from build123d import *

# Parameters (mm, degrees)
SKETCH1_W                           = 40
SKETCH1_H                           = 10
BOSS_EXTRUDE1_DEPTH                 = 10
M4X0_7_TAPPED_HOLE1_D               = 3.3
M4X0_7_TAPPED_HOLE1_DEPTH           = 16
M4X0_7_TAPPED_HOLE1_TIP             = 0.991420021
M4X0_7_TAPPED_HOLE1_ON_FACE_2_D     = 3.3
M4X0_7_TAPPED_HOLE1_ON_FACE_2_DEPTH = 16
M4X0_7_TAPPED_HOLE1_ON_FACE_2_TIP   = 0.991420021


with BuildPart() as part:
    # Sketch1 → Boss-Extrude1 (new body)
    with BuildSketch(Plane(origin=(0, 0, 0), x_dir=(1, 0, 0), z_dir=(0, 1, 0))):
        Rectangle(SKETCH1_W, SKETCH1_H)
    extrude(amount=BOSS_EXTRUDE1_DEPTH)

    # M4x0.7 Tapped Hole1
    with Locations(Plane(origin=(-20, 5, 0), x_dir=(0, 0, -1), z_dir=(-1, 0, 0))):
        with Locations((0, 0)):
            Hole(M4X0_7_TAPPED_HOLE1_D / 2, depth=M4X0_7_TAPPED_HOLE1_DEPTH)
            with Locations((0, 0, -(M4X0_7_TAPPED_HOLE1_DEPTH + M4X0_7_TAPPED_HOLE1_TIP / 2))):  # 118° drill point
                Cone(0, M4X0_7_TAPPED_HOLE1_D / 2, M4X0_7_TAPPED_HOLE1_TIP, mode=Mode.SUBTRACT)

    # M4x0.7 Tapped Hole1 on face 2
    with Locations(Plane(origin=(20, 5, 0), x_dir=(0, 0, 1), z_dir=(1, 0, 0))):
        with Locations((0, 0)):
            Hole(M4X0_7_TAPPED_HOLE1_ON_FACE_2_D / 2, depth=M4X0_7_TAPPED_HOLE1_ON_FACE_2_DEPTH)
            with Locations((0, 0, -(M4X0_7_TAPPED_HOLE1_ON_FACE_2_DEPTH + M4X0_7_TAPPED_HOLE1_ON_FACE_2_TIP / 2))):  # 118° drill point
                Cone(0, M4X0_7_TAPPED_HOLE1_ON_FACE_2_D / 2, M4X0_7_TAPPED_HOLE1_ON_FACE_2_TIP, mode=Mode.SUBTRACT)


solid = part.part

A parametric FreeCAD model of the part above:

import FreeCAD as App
import Part
import Sketcher
from FreeCAD import Vector
Q = App.Units.Quantity

doc = App.newDocument("Part")
body = doc.addObject("PartDesign::Body", "Body")

# Sketch on XZ plane
sketch1 = doc.addObject("Sketcher::SketchObject", "Sketch")
body.addObject(sketch1)
sketch1.AttachmentSupport = (doc.XZ_Plane, [""])
sketch1.MapMode = "FlatFace"
sketch1.addGeometry(Part.LineSegment(Vector(-20, -5, 0), Vector(-20, 5, 0)), False)
sketch1.addGeometry(Part.LineSegment(Vector(-20, 5, 0), Vector(20, 5, 0)), False)
sketch1.addGeometry(Part.LineSegment(Vector(20, 5, 0), Vector(20, -5, 0)), False)
sketch1.addGeometry(Part.LineSegment(Vector(20, -5, 0), Vector(-20, -5, 0)), False)
sketch1.addConstraint(Sketcher.Constraint("Coincident", 0, 2, 1, 1))
sketch1.addConstraint(Sketcher.Constraint("Coincident", 1, 2, 2, 1))
sketch1.addConstraint(Sketcher.Constraint("Coincident", 2, 2, 3, 1))
sketch1.addConstraint(Sketcher.Constraint("Coincident", 3, 2, 0, 1))
sketch1.addConstraint(Sketcher.Constraint("Vertical", 0))
sketch1.addConstraint(Sketcher.Constraint("Horizontal", 1))
sketch1.addConstraint(Sketcher.Constraint("Vertical", 2))
sketch1.addConstraint(Sketcher.Constraint("Horizontal", 3))
sketch1.addConstraint(Sketcher.Constraint("Symmetric", 0, 2, 2, 2, -1, 1))
sketch1.addConstraint(Sketcher.Constraint("DistanceX", 1, 1, 1, 2, Q("40 mm")))
sketch1.addConstraint(Sketcher.Constraint("DistanceY", 0, 1, 0, 2, Q("10 mm")))
pad1 = doc.addObject("PartDesign::Pad", "Pad")
body.addObject(pad1)
pad1.Profile = sketch1
pad1.Length = 10
pad1.Reversed = True

# Sketch on YZ plane
sketch2 = doc.addObject("Sketcher::SketchObject", "Sketch001")
body.addObject(sketch2)
sketch2.AttachmentSupport = (doc.YZ_Plane, [""])
sketch2.MapMode = "FlatFace"
sketch2.AttachmentOffset = App.Placement(Vector(0, 0, -20), App.Rotation())
sketch2.addGeometry(Part.Circle(Vector(5, 0, 0), Vector(0, 0, 1), 1.6), False)
sketch2.addConstraint(Sketcher.Constraint("PointOnObject", 0, 3, -1))
sketch2.addConstraint(Sketcher.Constraint("Diameter", 0, Q("3.3 mm")))
sketch2.addConstraint(Sketcher.Constraint("DistanceX", -1, 1, 0, 3, Q("5 mm")))
doc.recompute()
hole = doc.addObject("PartDesign::Hole", "Hole")
body.addObject(hole)
hole.Profile = sketch2
hole.ThreadType = "None"
hole.Diameter = 3.3
hole.DepthType = "Dimension"
hole.Depth = 16
hole.DrillPoint = "Angled"
hole.DrillPointAngle = 118
hole.Reversed = True

# Sketch on YZ plane
sketch3 = doc.addObject("Sketcher::SketchObject", "Sketch002")
body.addObject(sketch3)
sketch3.AttachmentSupport = (doc.YZ_Plane, [""])
sketch3.MapMode = "FlatFace"
sketch3.AttachmentOffset = App.Placement(Vector(0, 0, 20), App.Rotation())
sketch3.addGeometry(Part.Circle(Vector(5, 0, 0), Vector(0, 0, 1), 1.6), False)
sketch3.addConstraint(Sketcher.Constraint("PointOnObject", 0, 3, -1))
sketch3.addConstraint(Sketcher.Constraint("Diameter", 0, Q("3.3 mm")))
sketch3.addConstraint(Sketcher.Constraint("DistanceX", -1, 1, 0, 3, Q("5 mm")))
doc.recompute()
hole2 = doc.addObject("PartDesign::Hole", "Hole001")
body.addObject(hole2)
hole2.Profile = sketch3
hole2.ThreadType = "None"
hole2.Diameter = 3.3
hole2.DepthType = "Dimension"
hole2.Depth = 16
hole2.DrillPoint = "Angled"
hole2.DrillPointAngle = 118

doc.recompute()
